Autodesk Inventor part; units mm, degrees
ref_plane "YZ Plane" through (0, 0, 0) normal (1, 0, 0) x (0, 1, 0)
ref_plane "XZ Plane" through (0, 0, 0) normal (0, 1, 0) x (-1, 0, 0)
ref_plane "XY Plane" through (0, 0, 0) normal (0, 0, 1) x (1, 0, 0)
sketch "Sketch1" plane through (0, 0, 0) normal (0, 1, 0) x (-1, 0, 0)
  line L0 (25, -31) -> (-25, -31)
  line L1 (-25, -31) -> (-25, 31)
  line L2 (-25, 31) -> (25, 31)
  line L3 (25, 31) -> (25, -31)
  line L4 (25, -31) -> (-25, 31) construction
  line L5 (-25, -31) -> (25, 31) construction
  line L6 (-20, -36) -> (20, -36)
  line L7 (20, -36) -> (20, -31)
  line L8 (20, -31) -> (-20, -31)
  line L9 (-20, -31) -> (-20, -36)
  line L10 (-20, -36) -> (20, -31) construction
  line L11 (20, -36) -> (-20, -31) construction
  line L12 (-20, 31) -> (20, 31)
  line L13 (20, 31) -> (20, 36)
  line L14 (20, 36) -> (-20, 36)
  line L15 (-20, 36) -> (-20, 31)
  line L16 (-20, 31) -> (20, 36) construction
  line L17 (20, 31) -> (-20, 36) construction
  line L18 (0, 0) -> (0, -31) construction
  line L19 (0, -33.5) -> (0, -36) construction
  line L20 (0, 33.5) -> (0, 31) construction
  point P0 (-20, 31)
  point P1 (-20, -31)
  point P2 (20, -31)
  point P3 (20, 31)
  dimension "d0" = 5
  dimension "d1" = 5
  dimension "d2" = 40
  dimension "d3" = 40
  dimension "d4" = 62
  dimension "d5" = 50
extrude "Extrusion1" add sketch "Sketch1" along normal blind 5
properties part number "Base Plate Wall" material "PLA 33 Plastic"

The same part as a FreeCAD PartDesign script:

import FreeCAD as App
import Part
import Sketcher

V = App.Vector
Q = App.Units.Quantity

doc = App.newDocument("Part")
params = doc.addObject("Spreadsheet::Sheet", "Params")
for row, (alias, value) in enumerate([
    ("sketch1_width", "5 mm"),
    ("sketch1_width2", "40 mm"),
    ("sketch1_height", "62 mm"),
    ("pad1_length", "5 mm"),
], start=1):
    params.set(f"A{row}", alias)
    params.set(f"B{row}", "=" + value)
    params.setAlias(f"B{row}", alias)

body = doc.addObject("PartDesign::Body", "Body")

# Sketch on XZ plane
sketch1 = body.newObject("Sketcher::SketchObject", "Sketch")
sketch1.AttachmentSupport = (doc.getObject("XZ_Plane"), [""])
sketch1.MapMode = "FlatFace"
sketch1.addGeometry([
    Part.LineSegment(V(-20, -31, 0), V(-25, -31, 0)),  # 0
    Part.LineSegment(V(-25, -31, 0), V(-25, 31, 0)),  # 1
    Part.LineSegment(V(-25, 31, 0), V(-20, 31, 0)),  # 2
    Part.LineSegment(V(-20, 31, 0), V(-20, 36, 0)),  # 3
    Part.LineSegment(V(-20, 36, 0), V(20, 36, 0)),  # 4
    Part.LineSegment(V(20, 36, 0), V(20, 31, 0)),  # 5
    Part.LineSegment(V(20, 31, 0), V(25, 31, 0)),  # 6
    Part.LineSegment(V(25, 31, 0), V(25, -31, 0)),  # 7
    Part.LineSegment(V(25, -31, 0), V(20, -31, 0)),  # 8
    Part.LineSegment(V(20, -31, 0), V(20, -36, 0)),  # 9
    Part.LineSegment(V(20, -36, 0), V(-20, -36, 0)),  # 10
    Part.LineSegment(V(-20, -36, 0), V(-20, -31, 0)),  # 11
], False)
sketch1.addConstraint([
    Sketcher.Constraint("Coincident", 0, 2, 1, 1),
    Sketcher.Constraint("Coincident", 1, 2, 2, 1),
    Sketcher.Constraint("Coincident", 2, 2, 3, 1),
    Sketcher.Constraint("Coincident", 3, 2, 4, 1),
    Sketcher.Constraint("Coincident", 4, 2, 5, 1),
    Sketcher.Constraint("Coincident", 5, 2, 6, 1),
    Sketcher.Constraint("Coincident", 6, 2, 7, 1),
    Sketcher.Constraint("Coincident", 7, 2, 8, 1),
    Sketcher.Constraint("Coincident", 8, 2, 9, 1),
    Sketcher.Constraint("Coincident", 9, 2, 10, 1),
    Sketcher.Constraint("Coincident", 10, 2, 11, 1),
    Sketcher.Constraint("Coincident", 11, 2, 0, 1),
    Sketcher.Constraint("Horizontal", 0),
    Sketcher.Constraint("Vertical", 1),
    Sketcher.Constraint("Horizontal", 2),
    Sketcher.Constraint("Vertical", 3),
    Sketcher.Constraint("Horizontal", 4),
    Sketcher.Constraint("Vertical", 5),
    Sketcher.Constraint("Horizontal", 6),
    Sketcher.Constraint("Vertical", 7),
    Sketcher.Constraint("Horizontal", 8),
    Sketcher.Constraint("Vertical", 9),
    Sketcher.Constraint("Horizontal", 10),
    Sketcher.Constraint("Vertical", 11),
    Sketcher.Constraint("Symmetric", 0, 2, 6, 2, -1, 1),
    Sketcher.Constraint("Symmetric", 2, 2, 8, 2, -1, 1),
    Sketcher.Constraint("Symmetric", 4, 2, 10, 2, -1, 1),
    Sketcher.Constraint("Symmetric", 2, 2, 5, 2, -2),
    Sketcher.Constraint("Equal", 8, 3),
    Sketcher.Constraint("DistanceX", 0, 2, 0, 1, Q("5 mm")),
    Sketcher.Constraint("DistanceX", 4, 1, 4, 2, Q("40 mm")),
    Sketcher.Constraint("DistanceY", 1, 1, 1, 2, Q("62 mm")),
])
sketch1.setExpression("Constraints[29]", "Params.sketch1_width")
sketch1.setExpression("Constraints[30]", "Params.sketch1_width2")
sketch1.setExpression("Constraints[31]", "Params.sketch1_height")
pad1 = body.newObject("PartDesign::Pad", "Pad")
pad1.Profile = sketch1
pad1.setExpression("Length", "Params.pad1_length")
pad1.Reversed = True

doc.recompute()
